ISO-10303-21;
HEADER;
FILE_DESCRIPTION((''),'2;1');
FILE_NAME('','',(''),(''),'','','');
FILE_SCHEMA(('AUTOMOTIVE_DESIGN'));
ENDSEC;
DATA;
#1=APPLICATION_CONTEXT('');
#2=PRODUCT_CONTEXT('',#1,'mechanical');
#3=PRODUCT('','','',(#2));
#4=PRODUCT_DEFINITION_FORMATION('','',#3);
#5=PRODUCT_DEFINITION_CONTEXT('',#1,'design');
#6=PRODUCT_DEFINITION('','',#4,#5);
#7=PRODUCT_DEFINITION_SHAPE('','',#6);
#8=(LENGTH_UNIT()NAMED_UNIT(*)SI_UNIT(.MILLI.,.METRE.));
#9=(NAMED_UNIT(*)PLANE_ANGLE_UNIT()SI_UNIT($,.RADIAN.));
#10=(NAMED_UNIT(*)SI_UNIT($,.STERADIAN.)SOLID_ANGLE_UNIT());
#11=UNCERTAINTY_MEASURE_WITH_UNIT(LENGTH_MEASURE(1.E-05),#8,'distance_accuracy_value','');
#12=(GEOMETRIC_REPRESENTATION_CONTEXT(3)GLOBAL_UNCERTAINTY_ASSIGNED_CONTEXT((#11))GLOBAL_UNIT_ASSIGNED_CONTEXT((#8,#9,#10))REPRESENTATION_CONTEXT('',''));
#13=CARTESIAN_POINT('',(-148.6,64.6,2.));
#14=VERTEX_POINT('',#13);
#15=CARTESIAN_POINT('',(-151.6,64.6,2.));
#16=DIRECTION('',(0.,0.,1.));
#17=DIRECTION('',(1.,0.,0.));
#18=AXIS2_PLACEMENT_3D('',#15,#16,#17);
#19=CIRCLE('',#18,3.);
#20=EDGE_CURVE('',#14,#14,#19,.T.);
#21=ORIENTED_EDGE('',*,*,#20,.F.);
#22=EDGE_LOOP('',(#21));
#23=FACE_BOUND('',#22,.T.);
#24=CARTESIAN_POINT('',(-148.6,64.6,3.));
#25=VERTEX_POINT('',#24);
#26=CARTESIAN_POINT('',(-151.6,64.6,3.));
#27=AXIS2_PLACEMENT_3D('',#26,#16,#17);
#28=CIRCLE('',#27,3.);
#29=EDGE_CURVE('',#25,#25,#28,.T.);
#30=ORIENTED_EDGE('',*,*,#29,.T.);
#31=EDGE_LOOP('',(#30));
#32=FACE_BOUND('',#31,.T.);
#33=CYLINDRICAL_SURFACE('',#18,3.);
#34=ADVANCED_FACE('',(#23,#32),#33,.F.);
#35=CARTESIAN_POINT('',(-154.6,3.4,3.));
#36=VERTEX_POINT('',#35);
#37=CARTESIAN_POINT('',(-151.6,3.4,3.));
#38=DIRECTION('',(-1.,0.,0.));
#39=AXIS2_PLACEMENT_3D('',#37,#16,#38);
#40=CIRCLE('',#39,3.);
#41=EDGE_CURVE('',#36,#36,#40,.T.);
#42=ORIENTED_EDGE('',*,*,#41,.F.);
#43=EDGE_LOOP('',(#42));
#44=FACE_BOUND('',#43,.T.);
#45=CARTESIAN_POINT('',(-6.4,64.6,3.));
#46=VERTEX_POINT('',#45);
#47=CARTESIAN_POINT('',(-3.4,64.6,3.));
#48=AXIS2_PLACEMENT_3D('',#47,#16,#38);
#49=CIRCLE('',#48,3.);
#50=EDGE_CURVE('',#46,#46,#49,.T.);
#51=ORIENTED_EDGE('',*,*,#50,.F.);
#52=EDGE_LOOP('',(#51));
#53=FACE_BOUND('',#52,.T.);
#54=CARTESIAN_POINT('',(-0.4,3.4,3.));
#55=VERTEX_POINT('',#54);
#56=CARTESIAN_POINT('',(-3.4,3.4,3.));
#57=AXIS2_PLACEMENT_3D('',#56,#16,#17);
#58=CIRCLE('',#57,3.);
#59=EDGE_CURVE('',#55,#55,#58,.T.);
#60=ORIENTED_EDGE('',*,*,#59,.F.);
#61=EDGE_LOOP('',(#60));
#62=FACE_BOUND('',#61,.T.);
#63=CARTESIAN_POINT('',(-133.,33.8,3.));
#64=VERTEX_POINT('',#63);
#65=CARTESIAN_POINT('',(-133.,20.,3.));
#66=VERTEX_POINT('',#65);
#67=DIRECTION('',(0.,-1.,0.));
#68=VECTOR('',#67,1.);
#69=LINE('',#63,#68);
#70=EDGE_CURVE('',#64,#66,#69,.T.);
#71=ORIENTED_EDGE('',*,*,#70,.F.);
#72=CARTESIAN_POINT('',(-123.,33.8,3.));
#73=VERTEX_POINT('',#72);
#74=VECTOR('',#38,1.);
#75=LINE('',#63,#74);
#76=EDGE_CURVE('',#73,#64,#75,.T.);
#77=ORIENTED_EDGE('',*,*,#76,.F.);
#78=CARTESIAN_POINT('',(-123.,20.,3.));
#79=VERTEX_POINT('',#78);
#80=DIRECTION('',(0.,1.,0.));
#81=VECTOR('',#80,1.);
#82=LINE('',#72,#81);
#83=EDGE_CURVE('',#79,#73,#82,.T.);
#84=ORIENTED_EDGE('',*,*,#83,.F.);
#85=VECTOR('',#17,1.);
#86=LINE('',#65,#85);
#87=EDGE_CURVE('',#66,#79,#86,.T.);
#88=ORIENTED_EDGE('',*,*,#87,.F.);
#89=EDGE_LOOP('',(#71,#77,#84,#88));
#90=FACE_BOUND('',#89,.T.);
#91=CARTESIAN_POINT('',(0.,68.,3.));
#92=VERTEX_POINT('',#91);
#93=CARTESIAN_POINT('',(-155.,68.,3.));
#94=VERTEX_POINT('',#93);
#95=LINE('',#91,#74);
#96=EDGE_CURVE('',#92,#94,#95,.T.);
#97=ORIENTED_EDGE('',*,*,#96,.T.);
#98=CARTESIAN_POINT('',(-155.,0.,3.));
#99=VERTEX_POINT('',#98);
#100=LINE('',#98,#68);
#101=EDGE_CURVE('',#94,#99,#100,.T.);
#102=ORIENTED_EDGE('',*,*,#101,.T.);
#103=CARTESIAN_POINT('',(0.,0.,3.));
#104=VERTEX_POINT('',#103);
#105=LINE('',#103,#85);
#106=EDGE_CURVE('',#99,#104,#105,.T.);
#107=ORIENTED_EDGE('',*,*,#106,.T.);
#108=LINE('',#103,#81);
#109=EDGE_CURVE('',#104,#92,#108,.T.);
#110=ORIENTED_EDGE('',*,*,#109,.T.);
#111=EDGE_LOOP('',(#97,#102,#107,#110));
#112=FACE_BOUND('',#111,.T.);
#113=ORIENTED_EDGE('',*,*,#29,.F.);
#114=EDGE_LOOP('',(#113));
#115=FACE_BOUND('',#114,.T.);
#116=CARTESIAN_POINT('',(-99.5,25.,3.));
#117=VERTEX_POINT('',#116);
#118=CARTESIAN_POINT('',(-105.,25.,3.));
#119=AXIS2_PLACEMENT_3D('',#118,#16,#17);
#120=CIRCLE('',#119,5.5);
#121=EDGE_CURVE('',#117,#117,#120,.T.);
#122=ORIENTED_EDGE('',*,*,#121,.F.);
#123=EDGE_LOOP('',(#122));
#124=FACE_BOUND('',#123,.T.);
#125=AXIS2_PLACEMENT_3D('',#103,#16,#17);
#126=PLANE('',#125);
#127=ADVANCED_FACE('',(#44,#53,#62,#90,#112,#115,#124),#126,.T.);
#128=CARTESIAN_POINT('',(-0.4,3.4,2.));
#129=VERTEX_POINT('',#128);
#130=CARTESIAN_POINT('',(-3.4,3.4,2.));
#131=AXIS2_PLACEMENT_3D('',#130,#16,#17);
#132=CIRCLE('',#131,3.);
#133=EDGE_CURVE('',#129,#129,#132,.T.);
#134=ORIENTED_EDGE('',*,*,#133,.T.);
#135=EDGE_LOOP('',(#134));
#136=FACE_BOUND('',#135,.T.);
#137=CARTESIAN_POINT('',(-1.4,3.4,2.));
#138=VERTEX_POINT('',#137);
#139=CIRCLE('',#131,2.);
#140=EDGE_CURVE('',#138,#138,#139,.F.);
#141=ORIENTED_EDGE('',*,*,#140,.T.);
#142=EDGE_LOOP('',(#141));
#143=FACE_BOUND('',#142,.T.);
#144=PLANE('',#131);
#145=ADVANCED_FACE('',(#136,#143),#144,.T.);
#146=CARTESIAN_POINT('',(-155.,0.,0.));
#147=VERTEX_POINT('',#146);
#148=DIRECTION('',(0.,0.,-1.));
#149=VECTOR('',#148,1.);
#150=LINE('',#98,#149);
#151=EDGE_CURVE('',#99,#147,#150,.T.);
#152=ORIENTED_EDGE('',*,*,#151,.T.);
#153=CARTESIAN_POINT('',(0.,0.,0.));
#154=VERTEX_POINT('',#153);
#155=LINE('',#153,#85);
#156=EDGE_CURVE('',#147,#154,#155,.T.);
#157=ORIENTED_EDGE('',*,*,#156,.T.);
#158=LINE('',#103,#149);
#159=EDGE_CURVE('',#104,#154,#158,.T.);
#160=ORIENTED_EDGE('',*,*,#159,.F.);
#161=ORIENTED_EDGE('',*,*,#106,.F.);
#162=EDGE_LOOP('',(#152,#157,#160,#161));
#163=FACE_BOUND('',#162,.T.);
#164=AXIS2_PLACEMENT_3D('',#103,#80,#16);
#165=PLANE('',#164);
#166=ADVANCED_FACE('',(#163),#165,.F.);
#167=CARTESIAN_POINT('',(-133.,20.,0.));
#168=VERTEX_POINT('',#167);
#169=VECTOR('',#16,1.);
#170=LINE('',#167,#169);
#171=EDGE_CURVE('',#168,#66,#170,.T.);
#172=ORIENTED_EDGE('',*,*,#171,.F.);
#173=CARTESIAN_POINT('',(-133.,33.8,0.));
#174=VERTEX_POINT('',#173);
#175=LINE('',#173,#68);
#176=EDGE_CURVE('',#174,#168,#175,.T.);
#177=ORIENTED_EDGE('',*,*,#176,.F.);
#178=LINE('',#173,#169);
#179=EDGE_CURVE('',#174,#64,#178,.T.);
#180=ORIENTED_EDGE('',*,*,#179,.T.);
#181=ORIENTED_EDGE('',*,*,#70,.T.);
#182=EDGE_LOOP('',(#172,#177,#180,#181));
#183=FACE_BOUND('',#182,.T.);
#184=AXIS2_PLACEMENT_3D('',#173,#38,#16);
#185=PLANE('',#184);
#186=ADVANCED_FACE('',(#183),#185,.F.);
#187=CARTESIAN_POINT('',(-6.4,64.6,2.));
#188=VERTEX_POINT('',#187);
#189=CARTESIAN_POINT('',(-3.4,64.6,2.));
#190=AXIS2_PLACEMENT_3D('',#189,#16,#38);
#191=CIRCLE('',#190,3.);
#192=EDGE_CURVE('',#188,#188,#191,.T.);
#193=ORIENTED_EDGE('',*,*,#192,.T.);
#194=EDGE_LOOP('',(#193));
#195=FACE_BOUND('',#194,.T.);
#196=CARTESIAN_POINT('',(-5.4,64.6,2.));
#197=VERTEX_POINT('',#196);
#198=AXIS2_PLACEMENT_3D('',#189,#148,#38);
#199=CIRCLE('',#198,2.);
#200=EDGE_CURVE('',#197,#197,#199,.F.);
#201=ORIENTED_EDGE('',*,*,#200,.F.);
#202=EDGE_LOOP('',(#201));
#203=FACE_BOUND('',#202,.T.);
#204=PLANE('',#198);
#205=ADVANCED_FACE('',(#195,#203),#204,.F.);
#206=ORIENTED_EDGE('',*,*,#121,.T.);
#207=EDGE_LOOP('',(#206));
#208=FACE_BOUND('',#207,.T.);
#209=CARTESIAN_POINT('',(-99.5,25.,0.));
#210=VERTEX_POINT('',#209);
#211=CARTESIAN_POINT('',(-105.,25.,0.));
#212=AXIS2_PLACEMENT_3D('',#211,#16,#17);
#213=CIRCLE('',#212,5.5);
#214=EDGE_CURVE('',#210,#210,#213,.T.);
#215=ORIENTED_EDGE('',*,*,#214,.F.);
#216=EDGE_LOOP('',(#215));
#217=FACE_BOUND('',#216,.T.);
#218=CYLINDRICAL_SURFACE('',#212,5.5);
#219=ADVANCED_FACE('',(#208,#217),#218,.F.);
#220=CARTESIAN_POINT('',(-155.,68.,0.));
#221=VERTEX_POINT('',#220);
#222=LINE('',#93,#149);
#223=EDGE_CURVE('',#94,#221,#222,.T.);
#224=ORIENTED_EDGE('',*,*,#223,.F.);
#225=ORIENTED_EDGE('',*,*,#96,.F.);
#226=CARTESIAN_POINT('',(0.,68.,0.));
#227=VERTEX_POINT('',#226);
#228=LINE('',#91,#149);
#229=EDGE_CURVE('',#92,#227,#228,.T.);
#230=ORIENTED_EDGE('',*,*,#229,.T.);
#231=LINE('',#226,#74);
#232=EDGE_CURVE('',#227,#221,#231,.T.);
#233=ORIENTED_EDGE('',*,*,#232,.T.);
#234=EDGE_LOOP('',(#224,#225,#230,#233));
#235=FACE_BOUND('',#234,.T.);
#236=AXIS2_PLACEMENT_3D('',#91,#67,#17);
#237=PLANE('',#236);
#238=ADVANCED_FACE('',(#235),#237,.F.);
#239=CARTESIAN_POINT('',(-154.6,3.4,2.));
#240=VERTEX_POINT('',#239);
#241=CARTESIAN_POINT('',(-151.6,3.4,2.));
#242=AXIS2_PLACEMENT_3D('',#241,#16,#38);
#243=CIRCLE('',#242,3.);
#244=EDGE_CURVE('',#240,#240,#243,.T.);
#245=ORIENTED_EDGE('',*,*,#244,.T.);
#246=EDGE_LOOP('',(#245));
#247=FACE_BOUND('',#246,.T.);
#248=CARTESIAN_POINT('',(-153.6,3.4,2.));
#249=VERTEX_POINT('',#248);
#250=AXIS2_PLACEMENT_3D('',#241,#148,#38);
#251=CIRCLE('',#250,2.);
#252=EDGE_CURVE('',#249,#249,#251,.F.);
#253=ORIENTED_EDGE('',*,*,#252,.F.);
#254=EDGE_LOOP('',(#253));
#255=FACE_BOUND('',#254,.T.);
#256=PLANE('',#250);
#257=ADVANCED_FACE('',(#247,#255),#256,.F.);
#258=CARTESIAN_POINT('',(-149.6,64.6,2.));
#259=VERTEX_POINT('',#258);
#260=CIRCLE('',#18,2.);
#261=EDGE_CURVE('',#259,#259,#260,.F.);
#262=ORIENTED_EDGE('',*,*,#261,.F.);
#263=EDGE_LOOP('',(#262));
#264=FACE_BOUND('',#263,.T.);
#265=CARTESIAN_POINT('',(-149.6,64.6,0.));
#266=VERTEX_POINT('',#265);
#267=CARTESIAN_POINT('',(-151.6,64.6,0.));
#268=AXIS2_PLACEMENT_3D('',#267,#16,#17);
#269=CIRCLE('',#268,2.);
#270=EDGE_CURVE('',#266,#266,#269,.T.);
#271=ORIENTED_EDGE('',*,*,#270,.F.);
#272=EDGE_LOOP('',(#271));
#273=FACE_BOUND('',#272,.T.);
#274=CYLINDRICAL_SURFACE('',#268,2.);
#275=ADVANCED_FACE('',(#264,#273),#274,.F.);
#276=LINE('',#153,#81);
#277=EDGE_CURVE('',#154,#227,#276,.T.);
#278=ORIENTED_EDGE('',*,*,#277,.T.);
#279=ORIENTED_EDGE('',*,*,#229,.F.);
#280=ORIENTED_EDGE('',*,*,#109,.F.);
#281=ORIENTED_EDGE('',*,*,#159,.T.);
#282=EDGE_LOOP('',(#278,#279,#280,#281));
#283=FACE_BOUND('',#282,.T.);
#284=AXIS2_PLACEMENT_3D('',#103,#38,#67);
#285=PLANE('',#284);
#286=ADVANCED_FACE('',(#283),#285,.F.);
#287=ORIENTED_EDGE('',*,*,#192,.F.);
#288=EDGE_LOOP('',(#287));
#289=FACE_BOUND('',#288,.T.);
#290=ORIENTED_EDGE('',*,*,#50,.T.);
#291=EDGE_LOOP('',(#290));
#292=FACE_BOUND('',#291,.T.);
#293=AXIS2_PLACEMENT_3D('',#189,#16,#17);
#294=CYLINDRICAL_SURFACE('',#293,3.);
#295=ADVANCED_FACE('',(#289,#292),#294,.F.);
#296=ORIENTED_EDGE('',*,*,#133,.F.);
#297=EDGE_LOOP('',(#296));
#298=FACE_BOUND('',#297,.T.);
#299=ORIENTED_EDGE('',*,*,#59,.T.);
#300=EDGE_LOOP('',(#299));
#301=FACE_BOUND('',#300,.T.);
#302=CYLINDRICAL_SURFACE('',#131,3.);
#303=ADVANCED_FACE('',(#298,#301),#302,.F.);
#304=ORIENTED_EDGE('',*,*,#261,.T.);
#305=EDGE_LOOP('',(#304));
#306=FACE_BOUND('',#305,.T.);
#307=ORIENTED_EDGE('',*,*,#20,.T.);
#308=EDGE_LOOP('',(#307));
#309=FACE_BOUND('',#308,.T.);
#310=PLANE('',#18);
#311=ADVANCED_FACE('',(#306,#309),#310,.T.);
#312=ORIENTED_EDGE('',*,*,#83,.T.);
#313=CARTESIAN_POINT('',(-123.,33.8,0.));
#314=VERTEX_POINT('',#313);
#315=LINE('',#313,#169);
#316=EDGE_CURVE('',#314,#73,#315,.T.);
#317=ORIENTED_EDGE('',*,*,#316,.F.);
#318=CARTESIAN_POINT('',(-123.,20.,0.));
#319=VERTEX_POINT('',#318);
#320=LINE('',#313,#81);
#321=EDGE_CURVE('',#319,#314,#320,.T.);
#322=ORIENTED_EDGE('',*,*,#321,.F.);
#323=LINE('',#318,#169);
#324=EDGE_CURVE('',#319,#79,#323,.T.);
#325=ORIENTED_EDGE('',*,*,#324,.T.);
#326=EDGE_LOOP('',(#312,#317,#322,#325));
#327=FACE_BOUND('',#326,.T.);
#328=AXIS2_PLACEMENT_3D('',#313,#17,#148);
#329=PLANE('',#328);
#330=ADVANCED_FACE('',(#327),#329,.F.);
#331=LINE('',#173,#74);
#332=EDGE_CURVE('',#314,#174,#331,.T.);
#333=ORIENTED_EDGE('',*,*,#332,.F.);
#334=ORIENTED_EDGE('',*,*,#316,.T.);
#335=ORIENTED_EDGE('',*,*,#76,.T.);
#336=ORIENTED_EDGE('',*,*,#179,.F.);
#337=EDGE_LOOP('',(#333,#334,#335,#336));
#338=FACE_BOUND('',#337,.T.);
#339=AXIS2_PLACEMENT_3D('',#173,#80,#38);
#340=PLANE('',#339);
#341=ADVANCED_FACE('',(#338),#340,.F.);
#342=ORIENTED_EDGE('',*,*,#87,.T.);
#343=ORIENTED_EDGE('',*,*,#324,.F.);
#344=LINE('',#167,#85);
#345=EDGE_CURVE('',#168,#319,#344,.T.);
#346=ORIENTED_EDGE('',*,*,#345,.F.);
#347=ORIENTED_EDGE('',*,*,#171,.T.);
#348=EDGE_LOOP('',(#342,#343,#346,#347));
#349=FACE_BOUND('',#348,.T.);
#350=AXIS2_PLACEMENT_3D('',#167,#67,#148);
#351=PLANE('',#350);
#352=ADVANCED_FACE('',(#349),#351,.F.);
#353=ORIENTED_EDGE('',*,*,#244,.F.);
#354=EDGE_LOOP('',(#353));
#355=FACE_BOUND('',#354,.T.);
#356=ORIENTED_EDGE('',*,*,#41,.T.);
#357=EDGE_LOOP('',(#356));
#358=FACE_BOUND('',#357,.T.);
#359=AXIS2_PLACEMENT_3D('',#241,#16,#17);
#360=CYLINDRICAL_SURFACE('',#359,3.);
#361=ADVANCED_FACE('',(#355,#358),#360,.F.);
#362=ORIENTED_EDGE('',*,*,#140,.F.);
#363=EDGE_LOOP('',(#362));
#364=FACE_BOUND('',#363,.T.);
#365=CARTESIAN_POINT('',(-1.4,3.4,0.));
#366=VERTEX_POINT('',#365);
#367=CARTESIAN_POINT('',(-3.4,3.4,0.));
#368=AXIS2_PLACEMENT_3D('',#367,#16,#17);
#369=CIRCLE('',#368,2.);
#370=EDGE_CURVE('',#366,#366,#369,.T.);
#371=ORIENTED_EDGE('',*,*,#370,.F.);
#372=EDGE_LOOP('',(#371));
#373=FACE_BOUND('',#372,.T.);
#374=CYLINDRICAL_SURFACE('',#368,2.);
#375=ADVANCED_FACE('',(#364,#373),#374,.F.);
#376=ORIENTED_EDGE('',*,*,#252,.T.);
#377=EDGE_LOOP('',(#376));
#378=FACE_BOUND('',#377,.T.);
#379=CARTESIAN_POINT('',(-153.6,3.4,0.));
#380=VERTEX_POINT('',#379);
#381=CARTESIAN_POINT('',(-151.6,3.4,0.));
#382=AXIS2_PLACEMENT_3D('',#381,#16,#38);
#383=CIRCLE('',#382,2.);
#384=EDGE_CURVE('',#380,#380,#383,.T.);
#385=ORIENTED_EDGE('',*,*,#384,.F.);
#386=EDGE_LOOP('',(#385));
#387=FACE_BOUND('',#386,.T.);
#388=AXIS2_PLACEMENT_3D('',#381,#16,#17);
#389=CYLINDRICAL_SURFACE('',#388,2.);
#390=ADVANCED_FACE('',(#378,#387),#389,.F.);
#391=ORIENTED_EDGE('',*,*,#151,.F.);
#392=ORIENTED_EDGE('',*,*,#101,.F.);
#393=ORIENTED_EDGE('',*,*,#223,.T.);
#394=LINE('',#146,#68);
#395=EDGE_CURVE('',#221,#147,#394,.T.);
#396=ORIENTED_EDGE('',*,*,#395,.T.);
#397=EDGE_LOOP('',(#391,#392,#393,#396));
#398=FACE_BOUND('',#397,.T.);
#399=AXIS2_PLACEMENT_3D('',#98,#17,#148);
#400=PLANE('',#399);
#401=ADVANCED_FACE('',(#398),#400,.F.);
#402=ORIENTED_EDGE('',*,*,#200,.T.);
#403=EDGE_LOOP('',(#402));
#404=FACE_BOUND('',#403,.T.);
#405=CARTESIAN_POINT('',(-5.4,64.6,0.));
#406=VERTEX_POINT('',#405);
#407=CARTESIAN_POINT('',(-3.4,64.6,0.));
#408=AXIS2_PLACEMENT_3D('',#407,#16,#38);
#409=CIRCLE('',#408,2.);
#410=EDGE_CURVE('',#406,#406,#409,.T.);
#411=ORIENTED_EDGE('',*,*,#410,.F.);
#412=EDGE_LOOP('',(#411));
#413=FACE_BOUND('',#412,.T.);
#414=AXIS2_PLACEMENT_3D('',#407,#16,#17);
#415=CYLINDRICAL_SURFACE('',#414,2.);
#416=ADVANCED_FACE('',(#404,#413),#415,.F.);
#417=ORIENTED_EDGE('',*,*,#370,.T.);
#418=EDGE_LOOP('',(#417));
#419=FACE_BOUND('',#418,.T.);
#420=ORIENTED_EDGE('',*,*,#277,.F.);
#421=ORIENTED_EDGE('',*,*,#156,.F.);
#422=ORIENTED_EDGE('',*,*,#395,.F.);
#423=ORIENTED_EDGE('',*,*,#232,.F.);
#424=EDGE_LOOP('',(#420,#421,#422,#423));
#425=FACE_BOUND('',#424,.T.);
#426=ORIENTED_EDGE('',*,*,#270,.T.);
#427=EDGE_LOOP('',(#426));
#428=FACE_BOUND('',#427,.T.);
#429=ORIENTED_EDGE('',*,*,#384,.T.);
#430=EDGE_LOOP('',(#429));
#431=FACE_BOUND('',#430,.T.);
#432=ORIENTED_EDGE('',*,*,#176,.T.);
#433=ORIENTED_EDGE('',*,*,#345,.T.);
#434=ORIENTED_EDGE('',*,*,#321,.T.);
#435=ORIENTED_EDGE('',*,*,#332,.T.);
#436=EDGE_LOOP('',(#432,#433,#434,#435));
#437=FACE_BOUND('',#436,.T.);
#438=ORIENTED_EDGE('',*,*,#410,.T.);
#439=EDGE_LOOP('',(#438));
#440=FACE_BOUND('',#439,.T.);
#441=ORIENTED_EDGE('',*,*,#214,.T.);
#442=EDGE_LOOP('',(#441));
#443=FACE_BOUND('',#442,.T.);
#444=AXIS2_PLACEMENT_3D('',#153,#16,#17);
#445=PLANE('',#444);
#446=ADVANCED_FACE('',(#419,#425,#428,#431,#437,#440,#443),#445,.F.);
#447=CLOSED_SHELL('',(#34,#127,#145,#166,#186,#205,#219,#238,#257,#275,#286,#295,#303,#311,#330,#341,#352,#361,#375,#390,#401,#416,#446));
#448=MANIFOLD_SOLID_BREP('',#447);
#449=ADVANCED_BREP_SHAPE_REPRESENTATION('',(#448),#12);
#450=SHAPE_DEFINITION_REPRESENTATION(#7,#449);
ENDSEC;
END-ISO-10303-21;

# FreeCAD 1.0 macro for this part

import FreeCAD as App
import Part
import Sketcher

V = App.Vector

doc = App.newDocument("Part")
body = doc.addObject("PartDesign::Body", "Body")

# Sketch on XY plane
sketch1 = body.newObject("Sketcher::SketchObject", "Sketch")
sketch1.AttachmentSupport = (doc.getObject("XY_Plane"), [""])
sketch1.MapMode = "FlatFace"
sketch1.addGeometry(Part.LineSegment(V(-155, 68, 0), V(-155, 0, 0)), False)
sketch1.addGeometry(Part.LineSegment(V(-155, 0, 0), V(0, 0, 0)), False)
sketch1.addGeometry(Part.LineSegment(V(0, 0, 0), V(0, 68, 0)), False)
sketch1.addGeometry(Part.LineSegment(V(0, 68, 0), V(-155, 68, 0)), False)
sketch1.addConstraint(Sketcher.Constraint("Coincident", 0, 2, 1, 1))
sketch1.addConstraint(Sketcher.Constraint("Coincident", 1, 2, 2, 1))
sketch1.addConstraint(Sketcher.Constraint("Coincident", 2, 2, 3, 1))
sketch1.addConstraint(Sketcher.Constraint("Coincident", 3, 2, 0, 1))
sketch1.addConstraint(Sketcher.Constraint("Vertical", 0))
sketch1.addConstraint(Sketcher.Constraint("Horizontal", 1))
sketch1.addConstraint(Sketcher.Constraint("Vertical", 2))
sketch1.addConstraint(Sketcher.Constraint("Horizontal", 3))
sketch1.addConstraint(Sketcher.Constraint("Coincident", 1, 2, -1, 1))
sketch1.addConstraint(Sketcher.Constraint("DistanceX", 1, 1, 1, 2, 155.0))
sketch1.addConstraint(Sketcher.Constraint("DistanceY", 0, 2, 0, 1, 68.0))
pad1 = body.newObject("PartDesign::Pad", "Pad")
pad1.Profile = sketch1
pad1.Length = 3

# Sketch on XY plane
sketch2 = body.newObject("Sketcher::SketchObject", "Sketch001")
sketch2.AttachmentSupport = (doc.getObject("XY_Plane"), [""])
sketch2.MapMode = "FlatFace"
sketch2.AttachmentOffset = App.Placement(V(0, 0, 3), App.Rotation())
sketch2.addGeometry(Part.Circle(V(-105, 25, 0), V(0, 0, 1), 6), False)
sketch2.addGeometry(Part.LineSegment(V(-133, 34, 0), V(-133, 20, 0)), False)
sketch2.addGeometry(Part.LineSegment(V(-133, 20, 0), V(-123, 20, 0)), False)
sketch2.addGeometry(Part.LineSegment(V(-123, 20, 0), V(-123, 34, 0)), False)
sketch2.addGeometry(Part.LineSegment(V(-123, 34, 0), V(-133, 34, 0)), False)
sketch2.addConstraint(Sketcher.Constraint("Coincident", 1, 2, 2, 1))
sketch2.addConstraint(Sketcher.Constraint("Coincident", 2, 2, 3, 1))
sketch2.addConstraint(Sketcher.Constraint("Coincident", 3, 2, 4, 1))
sketch2.addConstraint(Sketcher.Constraint("Coincident", 4, 2, 1, 1))
sketch2.addConstraint(Sketcher.Constraint("Vertical", 1))
sketch2.addConstraint(Sketcher.Constraint("Horizontal", 2))
sketch2.addConstraint(Sketcher.Constraint("Vertical", 3))
sketch2.addConstraint(Sketcher.Constraint("Horizontal", 4))
sketch2.addConstraint(Sketcher.Constraint("Diameter", 0, 11.0))
sketch2.addConstraint(Sketcher.Constraint("DistanceX", 2, 1, 2, 2, 10.0))
sketch2.addConstraint(Sketcher.Constraint("DistanceY", 1, 2, 1, 1, 13.8))
sketch2.addConstraint(Sketcher.Constraint("DistanceX", 0, 3, -1, 1, 105.0))
sketch2.addConstraint(Sketcher.Constraint("DistanceY", -1, 1, 0, 3, 25.0))
sketch2.addConstraint(Sketcher.Constraint("DistanceX", 1, 2, -1, 1, 133.0))
sketch2.addConstraint(Sketcher.Constraint("DistanceY", -1, 1, 1, 2, 20.0))
pocket1 = body.newObject("PartDesign::Pocket", "Pocket")
pocket1.Profile = sketch2
pocket1.Length = 3

# Sketch on XY plane
sketch3 = body.newObject("Sketcher::SketchObject", "Sketch002")
sketch3.AttachmentSupport = (doc.getObject("XY_Plane"), [""])
sketch3.MapMode = "FlatFace"
sketch3.AttachmentOffset = App.Placement(V(0, 0, 3), App.Rotation())
sketch3.addGeometry(Part.Circle(V(-151.6, 64.6, 0), V(0, 0, 1), 2), False)
sketch3.addGeometry(Part.Circle(V(-3.4, 64.6, 0), V(0, 0, 1), 2), False)
sketch3.addGeometry(Part.Circle(V(-151.6, 3.4, 0), V(0, 0, 1), 2), False)
sketch3.addGeometry(Part.Circle(V(-3.4, 3.4, 0), V(0, 0, 1), 2), False)
sketch3.addConstraint(Sketcher.Constraint("Equal", 0, 1))
sketch3.addConstraint(Sketcher.Constraint("Equal", 1, 2))
sketch3.addConstraint(Sketcher.Constraint("Equal", 2, 3))
sketch3.addConstraint(Sketcher.Constraint("Horizontal", 0, 3, 1, 3))
sketch3.addConstraint(Sketcher.Constraint("Horizontal", 2, 3, 3, 3))
sketch3.addConstraint(Sketcher.Constraint("Vertical", 0, 3, 2, 3))
sketch3.addConstraint(Sketcher.Constraint("Vertical", 1, 3, 3, 3))
sketch3.addConstraint(Sketcher.Constraint("Diameter", 0, 4.0))
sketch3.addConstraint(Sketcher.Constraint("DistanceX", 0, 3, -1, 1, 151.6))
sketch3.addConstraint(Sketcher.Constraint("DistanceY", -1, 1, 0, 3, 64.6))
sketch3.addConstraint(Sketcher.Constraint("DistanceX", 1, 3, -1, 1, 3.4))
sketch3.addConstraint(Sketcher.Constraint("DistanceY", -1, 1, 2, 3, 3.4))
pocket2 = body.newObject("PartDesign::Pocket", "Pocket001")
pocket2.Profile = sketch3
pocket2.Length = 3

# Sketch on XY plane
sketch4 = body.newObject("Sketcher::SketchObject", "Sketch003")
sketch4.AttachmentSupport = (doc.getObject("XY_Plane"), [""])
sketch4.MapMode = "FlatFace"
sketch4.AttachmentOffset = App.Placement(V(0, 0, 3), App.Rotation())
sketch4.addGeometry(Part.Circle(V(-151.6, 64.6, 0), V(0, 0, 1), 3), False)
sketch4.addGeometry(Part.Circle(V(-3.4, 64.6, 0), V(0, 0, 1), 3), False)
sketch4.addGeometry(Part.Circle(V(-3.4, 3.4, 0), V(0, 0, 1), 3), False)
sketch4.addGeometry(Part.Circle(V(-151.6, 3.4, 0), V(0, 0, 1), 3), False)
sketch4.addConstraint(Sketcher.Constraint("Equal", 0, 1))
sketch4.addConstraint(Sketcher.Constraint("Equal", 1, 2))
sketch4.addConstraint(Sketcher.Constraint("Equal", 2, 3))
sketch4.addConstraint(Sketcher.Constraint("Horizontal", 0, 3, 1, 3))
sketch4.addConstraint(Sketcher.Constraint("Horizontal", 2, 3, 3, 3))
sketch4.addConstraint(Sketcher.Constraint("Vertical", 1, 3, 2, 3))
sketch4.addConstraint(Sketcher.Constraint("Vertical", 0, 3, 3, 3))
sketch4.addConstraint(Sketcher.Constraint("Diameter", 0, 6.0))
sketch4.addConstraint(Sketcher.Constraint("DistanceX", 0, 3, -1, 1, 151.6))
sketch4.addConstraint(Sketcher.Constraint("DistanceY", -1, 1, 0, 3, 64.6))
sketch4.addConstraint(Sketcher.Constraint("DistanceX", 1, 3, -1, 1, 3.4))
sketch4.addConstraint(Sketcher.Constraint("DistanceY", -1, 1, 2, 3, 3.4))
pocket3 = body.newObject("PartDesign::Pocket", "Pocket002")
pocket3.Profile = sketch4
pocket3.Length = 1

doc.recompute()
